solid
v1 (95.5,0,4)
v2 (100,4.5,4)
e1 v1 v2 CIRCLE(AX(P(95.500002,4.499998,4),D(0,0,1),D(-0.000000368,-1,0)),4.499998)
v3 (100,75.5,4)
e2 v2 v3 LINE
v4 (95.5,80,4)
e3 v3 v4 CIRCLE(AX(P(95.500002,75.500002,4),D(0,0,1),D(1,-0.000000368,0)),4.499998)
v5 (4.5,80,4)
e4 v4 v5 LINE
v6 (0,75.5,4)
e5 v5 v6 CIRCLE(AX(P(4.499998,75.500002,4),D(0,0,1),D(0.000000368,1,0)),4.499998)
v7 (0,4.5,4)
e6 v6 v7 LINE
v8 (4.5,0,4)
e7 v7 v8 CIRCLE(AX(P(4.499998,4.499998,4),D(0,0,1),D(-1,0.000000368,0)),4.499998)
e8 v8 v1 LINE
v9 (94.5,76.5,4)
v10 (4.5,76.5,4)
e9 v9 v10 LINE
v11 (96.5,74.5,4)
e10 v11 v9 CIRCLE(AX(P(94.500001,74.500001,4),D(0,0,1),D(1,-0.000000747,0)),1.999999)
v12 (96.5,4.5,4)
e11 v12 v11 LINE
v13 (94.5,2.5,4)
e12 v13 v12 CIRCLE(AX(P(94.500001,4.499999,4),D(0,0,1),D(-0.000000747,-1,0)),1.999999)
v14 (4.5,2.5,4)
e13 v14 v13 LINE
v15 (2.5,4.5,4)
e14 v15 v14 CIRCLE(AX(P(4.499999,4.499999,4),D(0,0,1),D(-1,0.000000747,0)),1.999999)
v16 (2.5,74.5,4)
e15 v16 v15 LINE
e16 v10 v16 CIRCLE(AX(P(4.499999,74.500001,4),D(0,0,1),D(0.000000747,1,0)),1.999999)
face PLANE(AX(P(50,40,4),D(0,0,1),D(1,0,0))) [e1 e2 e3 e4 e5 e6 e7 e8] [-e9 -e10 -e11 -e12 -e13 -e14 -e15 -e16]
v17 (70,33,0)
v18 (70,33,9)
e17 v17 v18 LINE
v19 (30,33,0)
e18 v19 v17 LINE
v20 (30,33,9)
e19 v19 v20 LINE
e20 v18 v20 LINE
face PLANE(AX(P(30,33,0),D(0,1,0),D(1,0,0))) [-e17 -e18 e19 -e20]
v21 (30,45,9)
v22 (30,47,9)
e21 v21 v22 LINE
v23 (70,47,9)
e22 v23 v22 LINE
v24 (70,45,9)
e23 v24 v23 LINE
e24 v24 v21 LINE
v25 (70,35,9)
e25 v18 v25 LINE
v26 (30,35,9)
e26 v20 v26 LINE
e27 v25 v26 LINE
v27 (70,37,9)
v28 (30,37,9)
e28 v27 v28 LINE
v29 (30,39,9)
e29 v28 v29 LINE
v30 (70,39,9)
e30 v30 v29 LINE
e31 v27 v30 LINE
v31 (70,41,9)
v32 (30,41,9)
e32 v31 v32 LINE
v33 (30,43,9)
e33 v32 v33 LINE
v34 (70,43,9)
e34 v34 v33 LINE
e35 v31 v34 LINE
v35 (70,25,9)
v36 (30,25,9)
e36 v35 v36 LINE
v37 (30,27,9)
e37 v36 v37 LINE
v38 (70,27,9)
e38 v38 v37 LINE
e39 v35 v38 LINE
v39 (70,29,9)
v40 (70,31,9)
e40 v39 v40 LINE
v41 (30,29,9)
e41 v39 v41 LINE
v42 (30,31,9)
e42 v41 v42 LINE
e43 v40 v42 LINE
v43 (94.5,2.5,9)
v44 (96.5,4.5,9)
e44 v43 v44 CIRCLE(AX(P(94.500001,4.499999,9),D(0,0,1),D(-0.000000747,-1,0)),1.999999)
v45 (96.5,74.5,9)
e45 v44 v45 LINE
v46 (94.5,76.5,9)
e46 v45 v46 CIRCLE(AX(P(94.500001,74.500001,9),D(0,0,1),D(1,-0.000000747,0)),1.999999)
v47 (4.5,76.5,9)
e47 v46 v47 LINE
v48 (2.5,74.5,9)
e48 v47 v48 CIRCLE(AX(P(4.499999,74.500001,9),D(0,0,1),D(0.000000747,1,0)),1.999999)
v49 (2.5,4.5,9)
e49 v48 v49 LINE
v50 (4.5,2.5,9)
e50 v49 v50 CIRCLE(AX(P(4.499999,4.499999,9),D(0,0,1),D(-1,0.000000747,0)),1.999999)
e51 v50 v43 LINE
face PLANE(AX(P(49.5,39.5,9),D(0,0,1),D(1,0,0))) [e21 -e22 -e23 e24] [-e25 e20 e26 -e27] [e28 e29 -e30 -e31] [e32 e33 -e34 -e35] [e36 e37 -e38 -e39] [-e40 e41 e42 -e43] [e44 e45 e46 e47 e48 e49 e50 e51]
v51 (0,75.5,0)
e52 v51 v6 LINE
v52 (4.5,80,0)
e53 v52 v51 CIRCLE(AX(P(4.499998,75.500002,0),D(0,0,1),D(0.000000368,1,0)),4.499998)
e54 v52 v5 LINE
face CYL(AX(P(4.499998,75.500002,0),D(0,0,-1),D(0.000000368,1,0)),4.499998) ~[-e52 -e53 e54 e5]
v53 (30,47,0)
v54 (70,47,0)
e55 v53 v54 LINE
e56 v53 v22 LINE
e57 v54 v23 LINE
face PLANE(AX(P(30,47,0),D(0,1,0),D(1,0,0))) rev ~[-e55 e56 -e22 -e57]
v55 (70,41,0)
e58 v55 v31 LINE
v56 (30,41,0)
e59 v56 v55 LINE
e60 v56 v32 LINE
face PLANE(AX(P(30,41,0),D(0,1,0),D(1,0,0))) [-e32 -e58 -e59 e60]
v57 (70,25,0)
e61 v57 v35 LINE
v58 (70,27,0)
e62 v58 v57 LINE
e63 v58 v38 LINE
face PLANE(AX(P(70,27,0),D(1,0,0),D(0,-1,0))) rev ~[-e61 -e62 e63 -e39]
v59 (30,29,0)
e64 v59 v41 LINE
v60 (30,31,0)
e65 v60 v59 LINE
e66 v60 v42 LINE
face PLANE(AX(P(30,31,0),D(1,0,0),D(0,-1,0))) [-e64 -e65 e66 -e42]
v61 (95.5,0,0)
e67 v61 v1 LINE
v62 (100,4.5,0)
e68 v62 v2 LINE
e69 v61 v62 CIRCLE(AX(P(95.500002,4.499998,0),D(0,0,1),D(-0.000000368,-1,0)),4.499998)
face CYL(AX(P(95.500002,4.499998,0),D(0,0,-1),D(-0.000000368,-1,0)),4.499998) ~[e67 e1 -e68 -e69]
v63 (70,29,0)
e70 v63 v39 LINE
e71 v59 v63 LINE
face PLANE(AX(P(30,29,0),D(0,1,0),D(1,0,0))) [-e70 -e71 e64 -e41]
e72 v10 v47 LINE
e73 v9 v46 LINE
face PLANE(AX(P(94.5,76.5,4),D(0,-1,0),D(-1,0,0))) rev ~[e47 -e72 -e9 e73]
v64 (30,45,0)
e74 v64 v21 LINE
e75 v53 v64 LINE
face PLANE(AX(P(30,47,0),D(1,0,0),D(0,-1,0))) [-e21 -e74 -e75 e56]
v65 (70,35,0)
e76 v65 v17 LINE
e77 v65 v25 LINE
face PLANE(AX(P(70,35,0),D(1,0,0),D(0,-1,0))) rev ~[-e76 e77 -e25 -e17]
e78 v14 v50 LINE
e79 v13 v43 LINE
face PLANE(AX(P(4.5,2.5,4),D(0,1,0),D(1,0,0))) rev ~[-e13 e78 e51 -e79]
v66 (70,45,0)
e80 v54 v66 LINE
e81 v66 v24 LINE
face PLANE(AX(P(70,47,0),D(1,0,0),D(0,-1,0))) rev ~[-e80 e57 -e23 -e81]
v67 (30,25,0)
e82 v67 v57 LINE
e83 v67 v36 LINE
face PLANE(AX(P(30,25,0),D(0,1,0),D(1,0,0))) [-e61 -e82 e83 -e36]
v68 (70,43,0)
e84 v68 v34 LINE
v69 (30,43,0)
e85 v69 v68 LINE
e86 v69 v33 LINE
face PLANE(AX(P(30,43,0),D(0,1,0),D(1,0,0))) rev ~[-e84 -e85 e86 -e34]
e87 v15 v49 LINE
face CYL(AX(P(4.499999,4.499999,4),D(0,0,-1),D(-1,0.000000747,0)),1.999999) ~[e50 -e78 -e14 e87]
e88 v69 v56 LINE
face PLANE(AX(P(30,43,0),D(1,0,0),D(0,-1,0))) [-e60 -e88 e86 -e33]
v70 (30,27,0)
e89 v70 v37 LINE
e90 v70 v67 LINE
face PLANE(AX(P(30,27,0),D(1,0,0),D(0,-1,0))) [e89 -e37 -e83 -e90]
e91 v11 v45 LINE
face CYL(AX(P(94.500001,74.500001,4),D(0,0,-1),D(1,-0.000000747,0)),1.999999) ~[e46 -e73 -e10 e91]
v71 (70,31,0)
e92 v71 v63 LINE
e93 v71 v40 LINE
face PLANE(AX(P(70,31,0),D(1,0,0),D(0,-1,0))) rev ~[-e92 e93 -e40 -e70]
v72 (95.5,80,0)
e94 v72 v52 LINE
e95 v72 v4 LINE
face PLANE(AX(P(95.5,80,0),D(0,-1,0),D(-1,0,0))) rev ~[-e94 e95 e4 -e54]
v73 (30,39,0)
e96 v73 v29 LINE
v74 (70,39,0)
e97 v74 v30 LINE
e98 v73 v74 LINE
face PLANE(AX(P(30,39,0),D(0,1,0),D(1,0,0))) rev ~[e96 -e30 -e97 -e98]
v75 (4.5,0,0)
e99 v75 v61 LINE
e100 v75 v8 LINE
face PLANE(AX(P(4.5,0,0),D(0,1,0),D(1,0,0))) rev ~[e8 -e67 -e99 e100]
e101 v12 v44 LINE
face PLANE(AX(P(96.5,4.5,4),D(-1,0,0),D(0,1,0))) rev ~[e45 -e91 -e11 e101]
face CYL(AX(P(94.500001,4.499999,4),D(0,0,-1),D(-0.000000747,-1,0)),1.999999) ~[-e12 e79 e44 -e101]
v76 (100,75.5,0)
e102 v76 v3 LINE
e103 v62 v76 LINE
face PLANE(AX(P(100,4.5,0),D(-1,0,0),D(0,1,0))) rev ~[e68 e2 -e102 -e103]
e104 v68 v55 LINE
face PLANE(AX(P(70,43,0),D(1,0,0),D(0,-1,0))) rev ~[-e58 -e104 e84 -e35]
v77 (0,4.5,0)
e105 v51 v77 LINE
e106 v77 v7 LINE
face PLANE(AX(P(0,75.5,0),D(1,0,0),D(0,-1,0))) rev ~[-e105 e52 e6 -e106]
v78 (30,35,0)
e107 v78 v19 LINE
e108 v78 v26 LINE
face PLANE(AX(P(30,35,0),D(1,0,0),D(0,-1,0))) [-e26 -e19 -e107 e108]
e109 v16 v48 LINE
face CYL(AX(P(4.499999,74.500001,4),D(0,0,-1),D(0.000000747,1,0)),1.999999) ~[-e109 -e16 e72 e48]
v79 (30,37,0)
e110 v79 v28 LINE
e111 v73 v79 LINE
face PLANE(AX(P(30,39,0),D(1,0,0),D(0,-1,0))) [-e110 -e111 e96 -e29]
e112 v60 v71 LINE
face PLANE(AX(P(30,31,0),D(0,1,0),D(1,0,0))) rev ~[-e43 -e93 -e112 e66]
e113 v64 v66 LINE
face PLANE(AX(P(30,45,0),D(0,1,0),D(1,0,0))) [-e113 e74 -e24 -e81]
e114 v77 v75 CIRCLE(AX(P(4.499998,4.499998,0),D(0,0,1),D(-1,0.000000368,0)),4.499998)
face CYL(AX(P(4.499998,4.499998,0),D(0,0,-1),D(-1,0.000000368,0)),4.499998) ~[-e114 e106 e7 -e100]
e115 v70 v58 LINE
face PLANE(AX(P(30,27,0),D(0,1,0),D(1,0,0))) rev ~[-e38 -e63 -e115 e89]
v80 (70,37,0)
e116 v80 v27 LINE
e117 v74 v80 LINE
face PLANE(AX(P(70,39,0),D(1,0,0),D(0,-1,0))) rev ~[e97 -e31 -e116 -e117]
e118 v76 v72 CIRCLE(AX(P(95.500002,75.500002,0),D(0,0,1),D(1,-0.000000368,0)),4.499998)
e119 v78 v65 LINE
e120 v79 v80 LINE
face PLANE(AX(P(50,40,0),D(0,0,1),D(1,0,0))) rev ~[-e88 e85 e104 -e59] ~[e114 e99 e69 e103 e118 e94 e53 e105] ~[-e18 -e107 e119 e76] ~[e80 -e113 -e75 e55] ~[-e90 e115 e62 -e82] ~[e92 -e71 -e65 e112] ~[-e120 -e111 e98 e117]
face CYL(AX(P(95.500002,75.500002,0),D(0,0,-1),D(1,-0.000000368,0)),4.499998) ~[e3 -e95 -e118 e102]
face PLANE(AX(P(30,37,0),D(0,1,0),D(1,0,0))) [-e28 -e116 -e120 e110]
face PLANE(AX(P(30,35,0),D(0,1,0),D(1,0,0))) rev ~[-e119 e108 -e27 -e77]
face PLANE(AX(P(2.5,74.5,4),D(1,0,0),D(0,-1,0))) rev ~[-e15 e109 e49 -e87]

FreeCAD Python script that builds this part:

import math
import FreeCAD as App
import Part
import Sketcher

V = App.Vector
Q = App.Units.Quantity


def add_polygon(sketch, points):
    """Adds a closed chain of lines whose ends are joined by coincident constraints."""
    first, n = sketch.GeometryCount, len(points)
    for a, b in zip(points, points[1:] + points[:1]):
        sketch.addGeometry(Part.LineSegment(App.Vector(*a, 0), App.Vector(*b, 0)), False)
    for i in range(n):
        sketch.addConstraint(Sketcher.Constraint("Coincident", first + i, 2, first + (i + 1) % n, 1))

doc = App.newDocument("Part")
body = doc.addObject("PartDesign::Body", "Body")

sketch1 = body.newObject("Sketcher::SketchObject", "Sketch")
sketch1.AttachmentSupport = (doc.getObject("XY_Plane"), [""])
sketch1.MapMode = "FlatFace"
sketch1.addGeometry(Part.LineSegment(V(4.5, 0, 0), V(95.5, 0, 0)), False)
sketch1.addGeometry(Part.ArcOfCircle(Part.Circle(V(95.5, 4.5, 0), V(0, 0, 1), 4.5), math.radians(-90), math.radians(0)), False)
sketch1.addGeometry(Part.LineSegment(V(100, 4.5, 0), V(100, 75.5, 0)), False)
sketch1.addGeometry(Part.ArcOfCircle(Part.Circle(V(95.5, 75.5, 0), V(0, 0, 1), 4.5), math.radians(0), math.radians(90)), False)
sketch1.addGeometry(Part.LineSegment(V(95.5, 80, 0), V(4.5, 80, 0)), False)
sketch1.addGeometry(Part.ArcOfCircle(Part.Circle(V(4.5, 75.5, 0), V(0, 0, 1), 4.5), math.radians(90), math.radians(180)), False)
sketch1.addGeometry(Part.LineSegment(V(0, 75.5, 0), V(0, 4.5, 0)), False)
sketch1.addGeometry(Part.ArcOfCircle(Part.Circle(V(4.5, 4.5, 0), V(0, 0, 1), 4.5), math.radians(180), math.radians(270)), False)
sketch1.addConstraint(Sketcher.Constraint("Tangent", 0, 2, 1, 1))
sketch1.addConstraint(Sketcher.Constraint("Tangent", 1, 2, 2, 1))
sketch1.addConstraint(Sketcher.Constraint("Tangent", 2, 2, 3, 1))
sketch1.addConstraint(Sketcher.Constraint("Tangent", 3, 2, 4, 1))
sketch1.addConstraint(Sketcher.Constraint("Tangent", 4, 2, 5, 1))
sketch1.addConstraint(Sketcher.Constraint("Tangent", 5, 2, 6, 1))
sketch1.addConstraint(Sketcher.Constraint("Tangent", 6, 2, 7, 1))
sketch1.addConstraint(Sketcher.Constraint("Tangent", 7, 2, 0, 1))
sketch1.addConstraint(Sketcher.Constraint("Horizontal", 0))
sketch1.addConstraint(Sketcher.Constraint("Vertical", 2))
sketch1.addConstraint(Sketcher.Constraint("Horizontal", 4))
sketch1.addConstraint(Sketcher.Constraint("Vertical", 6))
sketch1.addConstraint(Sketcher.Constraint("Equal", 1, 3))
sketch1.addConstraint(Sketcher.Constraint("Equal", 3, 5))
sketch1.addConstraint(Sketcher.Constraint("Equal", 5, 7))
sketch1.addConstraint(Sketcher.Constraint("PointOnObject", 0, 2, -1))
sketch1.addConstraint(Sketcher.Constraint("PointOnObject", 5, 2, -2))
sketch1.addConstraint(Sketcher.Constraint("Radius", 1, Q("4.499998 mm")))
sketch1.addConstraint(Sketcher.Constraint("DistanceX", 0, 1, 0, 2, Q("91 mm")))
sketch1.addConstraint(Sketcher.Constraint("DistanceY", 2, 1, 2, 2, Q("71 mm")))
pad1 = body.newObject("PartDesign::Pad", "Pad")
pad1.Profile = sketch1
pad1.Length = 4

sketch2 = body.newObject("Sketcher::SketchObject", "Sketch001")
sketch2.AttachmentSupport = (doc.getObject("XY_Plane"), [""])
sketch2.MapMode = "FlatFace"
sketch2.AttachmentOffset = App.Placement(V(0, 0, 4), App.Rotation())
sketch2.addGeometry(Part.LineSegment(V(2.5, 74.5, 0), V(2.5, 4.5, 0)), False)
sketch2.addGeometry(Part.ArcOfCircle(Part.Circle(V(4.5, 4.5, 0), V(0, 0, 1), 2), math.radians(180), math.radians(270)), False)
sketch2.addGeometry(Part.LineSegment(V(4.5, 2.5, 0), V(94.5, 2.5, 0)), False)
sketch2.addGeometry(Part.ArcOfCircle(Part.Circle(V(94.5, 4.5, 0), V(0, 0, 1), 2), math.radians(-90), math.radians(0)), False)
sketch2.addGeometry(Part.LineSegment(V(96.5, 4.5, 0), V(96.5, 74.5, 0)), False)
sketch2.addGeometry(Part.ArcOfCircle(Part.Circle(V(94.5, 74.5, 0), V(0, 0, 1), 2), math.radians(0), math.radians(90)), False)
sketch2.addGeometry(Part.LineSegment(V(94.5, 76.5, 0), V(4.5, 76.5, 0)), False)
sketch2.addGeometry(Part.ArcOfCircle(Part.Circle(V(4.5, 74.5, 0), V(0, 0, 1), 2), math.radians(90), math.radians(180)), False)
sketch2.addConstraint(Sketcher.Constraint("Tangent", 0, 2, 1, 1))
sketch2.addConstraint(Sketcher.Constraint("Tangent", 1, 2, 2, 1))
sketch2.addConstraint(Sketcher.Constraint("Tangent", 2, 2, 3, 1))
sketch2.addConstraint(Sketcher.Constraint("Tangent", 3, 2, 4, 1))
sketch2.addConstraint(Sketcher.Constraint("Tangent", 4, 2, 5, 1))
sketch2.addConstraint(Sketcher.Constraint("Tangent", 5, 2, 6, 1))
sketch2.addConstraint(Sketcher.Constraint("Tangent", 6, 2, 7, 1))
sketch2.addConstraint(Sketcher.Constraint("Tangent", 7, 2, 0, 1))
sketch2.addConstraint(Sketcher.Constraint("Vertical", 0))
sketch2.addConstraint(Sketcher.Constraint("Horizontal", 2))
sketch2.addConstraint(Sketcher.Constraint("Vertical", 4))
sketch2.addConstraint(Sketcher.Constraint("Horizontal", 6))
sketch2.addConstraint(Sketcher.Constraint("Equal", 1, 3))
sketch2.addConstraint(Sketcher.Constraint("Equal", 3, 5))
sketch2.addConstraint(Sketcher.Constraint("Equal", 5, 7))
sketch2.addConstraint(Sketcher.Constraint("Radius", 1, Q("1.999999 mm")))
sketch2.addConstraint(Sketcher.Constraint("DistanceX", 2, 1, 2, 2, Q("90 mm")))
sketch2.addConstraint(Sketcher.Constraint("DistanceY", 0, 2, 0, 1, Q("70 mm")))
sketch2.addConstraint(Sketcher.Constraint("DistanceX", -1, 1, 1, 3, Q("4.499999 mm")))
sketch2.addConstraint(Sketcher.Constraint("DistanceY", -1, 1, 1, 3, Q("4.499999 mm")))
pad2 = body.newObject("PartDesign::Pad", "Pad001")
pad2.Profile = sketch2
pad2.Length = 5

sketch3 = body.newObject("Sketcher::SketchObject", "Sketch002")
sketch3.AttachmentSupport = (doc.getObject("XY_Plane"), [""])
sketch3.MapMode = "FlatFace"
add_polygon(sketch3, [(30, 45), (30, 47), (70, 47), (70, 45)])
add_polygon(sketch3, [(30, 41), (30, 43), (70, 43), (70, 41)])
add_polygon(sketch3, [(30, 37), (30, 39), (70, 39), (70, 37)])
add_polygon(sketch3, [(30, 33), (30, 35), (70, 35), (70, 33)])
add_polygon(sketch3, [(30, 29), (30, 31), (70, 31), (70, 29)])
add_polygon(sketch3, [(30, 25), (30, 27), (70, 27), (70, 25)])
sketch3.addConstraint(Sketcher.Constraint("Vertical", 0))
sketch3.addConstraint(Sketcher.Constraint("Horizontal", 1))
sketch3.addConstraint(Sketcher.Constraint("Vertical", 2))
sketch3.addConstraint(Sketcher.Constraint("Horizontal", 3))
sketch3.addConstraint(Sketcher.Constraint("Vertical", 4))
sketch3.addConstraint(Sketcher.Constraint("Horizontal", 5))
sketch3.addConstraint(Sketcher.Constraint("Vertical", 6))
sketch3.addConstraint(Sketcher.Constraint("Horizontal", 7))
sketch3.addConstraint(Sketcher.Constraint("Vertical", 8))
sketch3.addConstraint(Sketcher.Constraint("Horizontal", 9))
sketch3.addConstraint(Sketcher.Constraint("Vertical", 10))
sketch3.addConstraint(Sketcher.Constraint("Horizontal", 11))
sketch3.addConstraint(Sketcher.Constraint("Vertical", 12))
sketch3.addConstraint(Sketcher.Constraint("Horizontal", 13))
sketch3.addConstraint(Sketcher.Constraint("Vertical", 14))
sketch3.addConstraint(Sketcher.Constraint("Horizontal", 15))
sketch3.addConstraint(Sketcher.Constraint("Vertical", 16))
sketch3.addConstraint(Sketcher.Constraint("Horizontal", 17))
sketch3.addConstraint(Sketcher.Constraint("Vertical", 18))
sketch3.addConstraint(Sketcher.Constraint("Horizontal", 19))
sketch3.addConstraint(Sketcher.Constraint("Vertical", 20))
sketch3.addConstraint(Sketcher.Constraint("Horizontal", 21))
sketch3.addConstraint(Sketcher.Constraint("Vertical", 22))
sketch3.addConstraint(Sketcher.Constraint("Horizontal", 23))
sketch3.addConstraint(Sketcher.Constraint("Vertical", 3, 2, 4, 2))
sketch3.addConstraint(Sketcher.Constraint("Vertical", 2, 2, 5, 2))
sketch3.addConstraint(Sketcher.Constraint("Vertical", 7, 2, 8, 2))
sketch3.addConstraint(Sketcher.Constraint("Vertical", 6, 2, 9, 2))
sketch3.addConstraint(Sketcher.Constraint("Vertical", 11, 2, 12, 2))
sketch3.addConstraint(Sketcher.Constraint("Vertical", 10, 2, 13, 2))
sketch3.addConstraint(Sketcher.Constraint("Vertical", 15, 2, 16, 2))
sketch3.addConstraint(Sketcher.Constraint("Vertical", 14, 2, 17, 2))
sketch3.addConstraint(Sketcher.Constraint("Vertical", 19, 2, 20, 2))
sketch3.addConstraint(Sketcher.Constraint("Vertical", 18, 2, 21, 2))
sketch3.addConstraint(Sketcher.Constraint("Equal", 2, 4))
sketch3.addConstraint(Sketcher.Constraint("Equal", 6, 8))
sketch3.addConstraint(Sketcher.Constraint("Equal", 10, 12))
sketch3.addConstraint(Sketcher.Constraint("Equal", 14, 16))
sketch3.addConstraint(Sketcher.Constraint("Equal", 18, 20))
sketch3.addConstraint(Sketcher.Constraint("DistanceX", 1, 1, 1, 2, Q("40 mm")))
sketch3.addConstraint(Sketcher.Constraint("DistanceY", 0, 1, 0, 2, Q("2 mm")))
sketch3.addConstraint(Sketcher.Constraint("DistanceX", -1, 1, 0, 2, Q("30 mm")))
sketch3.addConstraint(Sketcher.Constraint("DistanceY", -1, 1, 0, 2, Q("47 mm")))
sketch3.addConstraint(Sketcher.Constraint("DistanceY", -1, 1, 4, 2, Q("43 mm")))
sketch3.addConstraint(Sketcher.Constraint("DistanceY", -1, 1, 8, 2, Q("39 mm")))
sketch3.addConstraint(Sketcher.Constraint("DistanceY", -1, 1, 12, 2, Q("35 mm")))
sketch3.addConstraint(Sketcher.Constraint("DistanceY", -1, 1, 16, 2, Q("31 mm")))
sketch3.addConstraint(Sketcher.Constraint("DistanceY", -1, 1, 20, 2, Q("27 mm")))
pocket1 = body.newObject("PartDesign::Pocket", "Pocket")
pocket1.Profile = sketch3
pocket1.Length = 20
pocket1.Reversed = True

doc.recompute()
